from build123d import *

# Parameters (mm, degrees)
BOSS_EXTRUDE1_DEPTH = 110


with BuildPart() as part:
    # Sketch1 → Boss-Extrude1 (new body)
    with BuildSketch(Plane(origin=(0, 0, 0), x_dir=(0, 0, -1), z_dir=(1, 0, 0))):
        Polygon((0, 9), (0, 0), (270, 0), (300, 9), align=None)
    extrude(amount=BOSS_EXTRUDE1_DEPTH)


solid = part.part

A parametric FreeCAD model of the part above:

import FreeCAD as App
import Part
import Sketcher
Q = App.Units.Quantity

doc = App.newDocument("Part")
params = doc.addObject("Spreadsheet::Sheet", "Params")
for row, (alias, value) in enumerate([
    ("sketch1_width", "9 mm"),
    ("sketch1_height", "270 mm"),
    ("sketch1_height2", "300 mm"),
    ("pad1_length", "110 mm"),
], start=1):
    params.set(f"A{row}", alias)
    params.set(f"B{row}", "=" + value)
    params.setAlias(f"B{row}", alias)

body = doc.addObject("PartDesign::Body", "Body")

# Sketch on YZ plane
sketch1 = body.newObject("Sketcher::SketchObject", "Sketch")
sketch1.AttachmentSupport = (doc.getObject("YZ_Plane"), [""])
sketch1.MapMode = "FlatFace"
sketch1.addGeometry([
    Part.LineSegment(App.Vector(9, 0, 0), App.Vector(0, 0, 0)),
    Part.LineSegment(App.Vector(0, 0, 0), App.Vector(0, -270, 0)),
    Part.LineSegment(App.Vector(0, -270, 0), App.Vector(9, -300, 0)),
    Part.LineSegment(App.Vector(9, -300, 0), App.Vector(9, 0, 0)),
], False)
sketch1.addConstraint([
    Sketcher.Constraint("Coincident", 0, 2, 1, 1),
    Sketcher.Constraint("Coincident", 1, 2, 2, 1),
    Sketcher.Constraint("Coincident", 2, 2, 3, 1),
    Sketcher.Constraint("Coincident", 3, 2, 0, 1),
    Sketcher.Constraint("Horizontal", 0),
    Sketcher.Constraint("Vertical", 1),
    Sketcher.Constraint("Vertical", 3),
    Sketcher.Constraint("Coincident", 0, 2, -1, 1),
    Sketcher.Constraint("DistanceX", 0, 2, 0, 1, Q("9 mm")),
    Sketcher.Constraint("DistanceY", 1, 2, 1, 1, Q("270 mm")),
    Sketcher.Constraint("DistanceY", 3, 1, 3, 2, Q("300 mm")),
])
sketch1.setExpression("Constraints[8]", "Params.sketch1_width")
sketch1.setExpression("Constraints[9]", "Params.sketch1_height")
sketch1.setExpression("Constraints[10]", "Params.sketch1_height2")
pad1 = body.newObject("PartDesign::Pad", "Pad")
pad1.Profile = sketch1
pad1.setExpression("Length", "Params.pad1_length")

doc.recompute()
